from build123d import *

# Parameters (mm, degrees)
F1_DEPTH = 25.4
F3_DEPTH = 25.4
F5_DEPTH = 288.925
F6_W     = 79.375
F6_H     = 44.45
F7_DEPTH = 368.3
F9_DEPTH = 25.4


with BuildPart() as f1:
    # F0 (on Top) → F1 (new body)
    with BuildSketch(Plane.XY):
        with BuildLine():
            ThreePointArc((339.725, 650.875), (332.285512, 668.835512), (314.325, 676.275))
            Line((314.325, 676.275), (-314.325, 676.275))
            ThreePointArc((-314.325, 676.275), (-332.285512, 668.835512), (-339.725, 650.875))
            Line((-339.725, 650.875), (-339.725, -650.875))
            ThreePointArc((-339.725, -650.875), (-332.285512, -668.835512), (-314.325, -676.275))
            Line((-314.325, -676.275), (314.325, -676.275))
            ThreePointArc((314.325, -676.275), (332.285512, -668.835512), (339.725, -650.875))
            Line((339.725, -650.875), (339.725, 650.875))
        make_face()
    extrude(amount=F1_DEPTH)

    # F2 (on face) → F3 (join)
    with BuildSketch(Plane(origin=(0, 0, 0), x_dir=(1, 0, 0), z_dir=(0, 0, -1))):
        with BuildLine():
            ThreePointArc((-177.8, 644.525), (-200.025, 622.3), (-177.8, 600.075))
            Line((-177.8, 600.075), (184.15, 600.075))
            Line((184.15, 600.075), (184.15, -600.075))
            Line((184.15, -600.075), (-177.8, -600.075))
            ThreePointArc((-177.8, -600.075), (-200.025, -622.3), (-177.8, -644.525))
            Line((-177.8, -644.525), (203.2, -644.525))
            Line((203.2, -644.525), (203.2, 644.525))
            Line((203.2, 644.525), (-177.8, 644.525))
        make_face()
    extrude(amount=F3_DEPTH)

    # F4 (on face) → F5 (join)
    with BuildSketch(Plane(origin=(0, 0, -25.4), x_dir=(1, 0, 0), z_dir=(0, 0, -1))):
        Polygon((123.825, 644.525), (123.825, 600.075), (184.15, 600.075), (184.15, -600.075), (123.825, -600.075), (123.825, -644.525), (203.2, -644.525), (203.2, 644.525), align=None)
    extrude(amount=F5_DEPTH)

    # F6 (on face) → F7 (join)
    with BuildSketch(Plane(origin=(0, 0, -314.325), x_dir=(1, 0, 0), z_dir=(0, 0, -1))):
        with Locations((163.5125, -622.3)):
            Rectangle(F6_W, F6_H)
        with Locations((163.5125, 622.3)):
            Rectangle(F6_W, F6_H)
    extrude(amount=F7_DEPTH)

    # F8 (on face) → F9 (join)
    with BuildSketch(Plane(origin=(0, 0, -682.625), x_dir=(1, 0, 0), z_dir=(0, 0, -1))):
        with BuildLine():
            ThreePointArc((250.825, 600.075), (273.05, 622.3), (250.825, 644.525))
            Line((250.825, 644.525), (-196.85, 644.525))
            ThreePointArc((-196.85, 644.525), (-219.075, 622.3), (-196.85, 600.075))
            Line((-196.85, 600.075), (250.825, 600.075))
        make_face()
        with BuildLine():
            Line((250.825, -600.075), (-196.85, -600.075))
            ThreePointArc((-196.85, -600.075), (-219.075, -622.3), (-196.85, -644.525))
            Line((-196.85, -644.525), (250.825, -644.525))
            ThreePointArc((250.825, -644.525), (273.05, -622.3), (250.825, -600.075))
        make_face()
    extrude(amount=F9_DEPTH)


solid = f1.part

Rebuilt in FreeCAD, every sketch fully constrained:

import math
import FreeCAD as App
import Part
import Sketcher
from FreeCAD import Vector
Q = App.Units.Quantity


def add_polygon(sketch, points):
    """Adds a closed chain of lines whose ends are joined by coincident constraints."""
    first, n = sketch.GeometryCount, len(points)
    for a, b in zip(points, points[1:] + points[:1]):
        sketch.addGeometry(Part.LineSegment(App.Vector(*a, 0), App.Vector(*b, 0)), False)
    for i in range(n):
        sketch.addConstraint(Sketcher.Constraint("Coincident", first + i, 2, first + (i + 1) % n, 1))

doc = App.newDocument("Part")
params = doc.addObject("Spreadsheet::Sheet", "Params")
for row, (alias, value) in enumerate([
    ("sketch1_radius", "1 in"),
    ("sketch1_width", "24.75 in"),
    ("sketch1_height", "51.25 in"),
    ("pad1_length", "1 in"),
    ("sketch2_width", "15 in"),
    ("sketch2_radius", "0.875 in"),
    ("sketch2_width2", "14.25 in"),
    ("pad2_length", "1 in"),
    ("sketch3_height", "1.75 in"),
    ("sketch3_width", "2.375 in"),
    ("sketch3_width2", "3.125 in"),
    ("pad3_length", "11.375 in"),
    ("sketch4_height", "1.75 in"),
    ("sketch4_width", "3.125 in"),
    ("pad4_length", "14.5 in"),
    ("sketch5_radius", "0.875 in"),
    ("sketch5_width", "17.625 in"),
    ("pad5_length", "1 in"),
], start=1):
    params.set(f"A{row}", alias)
    params.set(f"B{row}", "=" + value)
    params.setAlias(f"B{row}", alias)

body = doc.addObject("PartDesign::Body", "Body")

# Sketch on XY plane
sketch1 = doc.addObject("Sketcher::SketchObject", "Sketch")
body.addObject(sketch1)
sketch1.AttachmentSupport = (doc.XY_Plane, [""])
sketch1.MapMode = "FlatFace"
sketch1.addGeometry(Part.ArcOfCircle(Part.Circle(Vector(314, 651, 0), Vector(0, 0, 1), 25), math.radians(0), math.radians(90)), False)
sketch1.addGeometry(Part.LineSegment(Vector(314, 676, 0), Vector(-314, 676, 0)), False)
sketch1.addGeometry(Part.ArcOfCircle(Part.Circle(Vector(-314, 651, 0), Vector(0, 0, 1), 25), math.radians(90), math.radians(180)), False)
sketch1.addGeometry(Part.LineSegment(Vector(-340, 651, 0), Vector(-340, -651, 0)), False)
sketch1.addGeometry(Part.ArcOfCircle(Part.Circle(Vector(-314, -651, 0), Vector(0, 0, 1), 25), math.radians(-180), math.radians(-90)), False)
sketch1.addGeometry(Part.LineSegment(Vector(-314, -676, 0), Vector(314, -676, 0)), False)
sketch1.addGeometry(Part.ArcOfCircle(Part.Circle(Vector(314, -651, 0), Vector(0, 0, 1), 25), math.radians(-90), math.radians(0)), False)
sketch1.addGeometry(Part.LineSegment(Vector(340, -651, 0), Vector(340, 651, 0)), False)
sketch1.addConstraint(Sketcher.Constraint("Tangent", 0, 2, 1, 1))
sketch1.addConstraint(Sketcher.Constraint("Tangent", 1, 2, 2, 1))
sketch1.addConstraint(Sketcher.Constraint("Tangent", 2, 2, 3, 1))
sketch1.addConstraint(Sketcher.Constraint("Tangent", 3, 2, 4, 1))
sketch1.addConstraint(Sketcher.Constraint("Tangent", 4, 2, 5, 1))
sketch1.addConstraint(Sketcher.Constraint("Tangent", 5, 2, 6, 1))
sketch1.addConstraint(Sketcher.Constraint("Tangent", 6, 2, 7, 1))
sketch1.addConstraint(Sketcher.Constraint("Tangent", 7, 2, 0, 1))
sketch1.addConstraint(Sketcher.Constraint("Horizontal", 1))
sketch1.addConstraint(Sketcher.Constraint("Vertical", 3))
sketch1.addConstraint(Sketcher.Constraint("Horizontal", 5))
sketch1.addConstraint(Sketcher.Constraint("Vertical", 7))
sketch1.addConstraint(Sketcher.Constraint("Equal", 0, 2))
sketch1.addConstraint(Sketcher.Constraint("Equal", 2, 4))
sketch1.addConstraint(Sketcher.Constraint("Equal", 4, 6))
sketch1.addConstraint(Sketcher.Constraint("Symmetric", 0, 3, 4, 3, -1, 1))
sketch1.addConstraint(Sketcher.Constraint("Radius", 0, Q("1 in")))
sketch1.addConstraint(Sketcher.Constraint("DistanceX", 1, 2, 1, 1, Q("24.75 in")))
sketch1.addConstraint(Sketcher.Constraint("DistanceY", 3, 2, 3, 1, Q("51.25 in")))
sketch1.setExpression("Constraints[16]", "Params.sketch1_radius")
sketch1.setExpression("Constraints[17]", "Params.sketch1_width")
sketch1.setExpression("Constraints[18]", "Params.sketch1_height")
pad1 = doc.addObject("PartDesign::Pad", "Pad")
body.addObject(pad1)
pad1.Profile = sketch1
pad1.setExpression("Length", "Params.pad1_length")

# Sketch on XY plane
sketch2 = doc.addObject("Sketcher::SketchObject", "Sketch001")
body.addObject(sketch2)
sketch2.AttachmentSupport = (doc.XY_Plane, [""])
sketch2.MapMode = "FlatFace"
sketch2.addGeometry(Part.ArcOfCircle(Part.Circle(Vector(-178, -622, 0), Vector(0, 0, 1), 22), math.radians(90), math.radians(270)), False)
sketch2.addGeometry(Part.LineSegment(Vector(-178, -600, 0), Vector(184, -600, 0)), False)
sketch2.addGeometry(Part.LineSegment(Vector(184, -600, 0), Vector(184, 600, 0)), False)
sketch2.addGeometry(Part.LineSegment(Vector(184, 600, 0), Vector(-178, 600, 0)), False)
sketch2.addGeometry(Part.ArcOfCircle(Part.Circle(Vector(-178, 622, 0), Vector(0, 0, 1), 22), math.radians(90), math.radians(270)), False)
sketch2.addGeometry(Part.LineSegment(Vector(-178, 645, 0), Vector(203, 645, 0)), False)
sketch2.addGeometry(Part.LineSegment(Vector(203, 645, 0), Vector(203, -645, 0)), False)
sketch2.addGeometry(Part.LineSegment(Vector(203, -645, 0), Vector(-178, -645, 0)), False)
sketch2.addConstraint(Sketcher.Constraint("Tangent", 0, 1, 1, 1))
sketch2.addConstraint(Sketcher.Constraint("Coincident", 1, 2, 2, 1))
sketch2.addConstraint(Sketcher.Constraint("Coincident", 2, 2, 3, 1))
sketch2.addConstraint(Sketcher.Constraint("Tangent", 3, 2, 4, 2))
sketch2.addConstraint(Sketcher.Constraint("Tangent", 4, 1, 5, 1))
sketch2.addConstraint(Sketcher.Constraint("Coincident", 5, 2, 6, 1))
sketch2.addConstraint(Sketcher.Constraint("Coincident", 6, 2, 7, 1))
sketch2.addConstraint(Sketcher.Constraint("Tangent", 7, 2, 0, 2))
sketch2.addConstraint(Sketcher.Constraint("Horizontal", 1))
sketch2.addConstraint(Sketcher.Constraint("Vertical", 2))
sketch2.addConstraint(Sketcher.Constraint("Horizontal", 3))
sketch2.addConstraint(Sketcher.Constraint("Horizontal", 5))
sketch2.addConstraint(Sketcher.Constraint("Vertical", 6))
sketch2.addConstraint(Sketcher.Constraint("Horizontal", 7))
sketch2.addConstraint(Sketcher.Constraint("Equal", 0, 4))
sketch2.addConstraint(Sketcher.Constraint("Symmetric", 0, 3, 4, 3, -1))
sketch2.addConstraint(Sketcher.Constraint("DistanceX", 5, 1, 5, 2, Q("15 in")))
sketch2.addConstraint(Sketcher.Constraint("DistanceX", 0, 3, -1, 1, Q("7 in")))
sketch2.addConstraint(Sketcher.Constraint("Radius", 0, Q("0.875 in")))
sketch2.addConstraint(Sketcher.Constraint("DistanceY", 0, 3, 4, 3, Q("49 in")))
sketch2.addConstraint(Sketcher.Constraint("DistanceX", 1, 1, 1, 2, Q("14.25 in")))
sketch2.setExpression("Constraints[16]", "Params.sketch2_width")
sketch2.setExpression("Constraints[18]", "Params.sketch2_radius")
sketch2.setExpression("Constraints[20]", "Params.sketch2_width2")
pad2 = doc.addObject("PartDesign::Pad", "Pad001")
body.addObject(pad2)
pad2.Profile = sketch2
pad2.setExpression("Length", "Params.pad2_length")
pad2.Reversed = True

# Sketch on XY plane
sketch3 = doc.addObject("Sketcher::SketchObject", "Sketch002")
body.addObject(sketch3)
sketch3.AttachmentSupport = (doc.XY_Plane, [""])
sketch3.MapMode = "FlatFace"
sketch3.AttachmentOffset = App.Placement(Vector(0, 0, -1 * 25.4), App.Rotation())
add_polygon(sketch3, [(124, -645), (124, -600), (184, -600), (184, 600), (124, 600), (124, 645), (203, 645), (203, -645)])  # lines 0-7
sketch3.addConstraint(Sketcher.Constraint("Vertical", 0))
sketch3.addConstraint(Sketcher.Constraint("Horizontal", 1))
sketch3.addConstraint(Sketcher.Constraint("Vertical", 2))
sketch3.addConstraint(Sketcher.Constraint("Horizontal", 3))
sketch3.addConstraint(Sketcher.Constraint("Vertical", 4))
sketch3.addConstraint(Sketcher.Constraint("Horizontal", 5))
sketch3.addConstraint(Sketcher.Constraint("Vertical", 6))
sketch3.addConstraint(Sketcher.Constraint("Horizontal", 7))
sketch3.addConstraint(Sketcher.Constraint("Symmetric", 0, 2, 3, 2, -1))
sketch3.addConstraint(Sketcher.Constraint("Equal", 0, 4))
sketch3.addConstraint(Sketcher.Constraint("DistanceX", -1, 1, 5, 2, Q("8 in")))
sketch3.addConstraint(Sketcher.Constraint("DistanceY", 0, 2, 4, 2, Q("49 in")))
sketch3.addConstraint(Sketcher.Constraint("DistanceY", 0, 1, 0, 2, Q("1.75 in")))
sketch3.addConstraint(Sketcher.Constraint("DistanceX", 1, 1, 1, 2, Q("2.375 in")))
sketch3.addConstraint(Sketcher.Constraint("DistanceX", 5, 1, 5, 2, Q("3.125 in")))
sketch3.setExpression("Constraints[20]", "Params.sketch3_height")
sketch3.setExpression("Constraints[21]", "Params.sketch3_width")
sketch3.setExpression("Constraints[22]", "Params.sketch3_width2")
pad3 = doc.addObject("PartDesign::Pad", "Pad002")
body.addObject(pad3)
pad3.Profile = sketch3
pad3.setExpression("Length", "Params.pad3_length")
pad3.Reversed = True

# Sketch on XY plane
sketch4 = doc.addObject("Sketcher::SketchObject", "Sketch003")
body.addObject(sketch4)
sketch4.AttachmentSupport = (doc.XY_Plane, [""])
sketch4.MapMode = "FlatFace"
sketch4.AttachmentOffset = App.Placement(Vector(0, 0, -12.375 * 25.4), App.Rotation())
add_polygon(sketch4, [(124, 600), (124, 645), (203, 645), (203, 600)])  # lines 0-3
add_polygon(sketch4, [(124, -645), (124, -600), (203, -600), (203, -645)])  # lines 4-7
sketch4.addConstraint(Sketcher.Constraint("Vertical", 0))
sketch4.addConstraint(Sketcher.Constraint("Horizontal", 1))
sketch4.addConstraint(Sketcher.Constraint("Vertical", 2))
sketch4.addConstraint(Sketcher.Constraint("Horizontal", 3))
sketch4.addConstraint(Sketcher.Constraint("Vertical", 4))
sketch4.addConstraint(Sketcher.Constraint("Horizontal", 5))
sketch4.addConstraint(Sketcher.Constraint("Vertical", 6))
sketch4.addConstraint(Sketcher.Constraint("Horizontal", 7))
sketch4.addConstraint(Sketcher.Constraint("Symmetric", 3, 2, 4, 2, -1))
sketch4.addConstraint(Sketcher.Constraint("Symmetric", 1, 2, 6, 2, -1))
sketch4.addConstraint(Sketcher.Constraint("DistanceX", -1, 1, 1, 2, Q("8 in")))
sketch4.addConstraint(Sketcher.Constraint("DistanceY", 4, 2, 0, 2, Q("49 in")))
sketch4.addConstraint(Sketcher.Constraint("DistanceY", 0, 1, 0, 2, Q("1.75 in")))
sketch4.addConstraint(Sketcher.Constraint("DistanceX", 1, 1, 1, 2, Q("3.125 in")))
sketch4.setExpression("Constraints[20]", "Params.sketch4_height")
sketch4.setExpression("Constraints[21]", "Params.sketch4_width")
pad4 = doc.addObject("PartDesign::Pad", "Pad003")
body.addObject(pad4)
pad4.Profile = sketch4
pad4.setExpression("Length", "Params.pad4_length")
pad4.Reversed = True

# Sketch on XY plane
sketch5 = doc.addObject("Sketcher::SketchObject", "Sketch004")
body.addObject(sketch5)
sketch5.AttachmentSupport = (doc.XY_Plane, [""])
sketch5.MapMode = "FlatFace"
sketch5.AttachmentOffset = App.Placement(Vector(0, 0, -26.875 * 25.4), App.Rotation())
sketch5.addGeometry(Part.ArcOfCircle(Part.Circle(Vector(251, -622, 0), Vector(0, 0, 1), 22), math.radians(-90), math.radians(90)), False)
sketch5.addGeometry(Part.LineSegment(Vector(251, -645, 0), Vector(-197, -645, 0)), False)
sketch5.addGeometry(Part.ArcOfCircle(Part.Circle(Vector(-197, -622, 0), Vector(0, 0, 1), 22), math.radians(90), math.radians(270)), False)
sketch5.addGeometry(Part.LineSegment(Vector(-197, -600, 0), Vector(251, -600, 0)), False)
sketch5.addGeometry(Part.LineSegment(Vector(251, 600, 0), Vector(-197, 600, 0)), False)
sketch5.addGeometry(Part.ArcOfCircle(Part.Circle(Vector(-197, 622, 0), Vector(0, 0, 1), 22), math.radians(90), math.radians(270)), False)
sketch5.addGeometry(Part.LineSegment(Vector(-197, 645, 0), Vector(251, 645, 0)), False)
sketch5.addGeometry(Part.ArcOfCircle(Part.Circle(Vector(251, 622, 0), Vector(0, 0, 1), 22), math.radians(-90), math.radians(90)), False)
sketch5.addConstraint(Sketcher.Constraint("Tangent", 0, 1, 1, 1))
sketch5.addConstraint(Sketcher.Constraint("Tangent", 1, 2, 2, 2))
sketch5.addConstraint(Sketcher.Constraint("Tangent", 2, 1, 3, 1))
sketch5.addConstraint(Sketcher.Constraint("Tangent", 3, 2, 0, 2))
sketch5.addConstraint(Sketcher.Constraint("Tangent", 4, 2, 5, 2))
sketch5.addConstraint(Sketcher.Constraint("Tangent", 5, 1, 6, 1))
sketch5.addConstraint(Sketcher.Constraint("Tangent", 6, 2, 7, 2))
sketch5.addConstraint(Sketcher.Constraint("Tangent", 7, 1, 4, 1))
sketch5.addConstraint(Sketcher.Constraint("Horizontal", 1))
sketch5.addConstraint(Sketcher.Constraint("Horizontal", 3))
sketch5.addConstraint(Sketcher.Constraint("Horizontal", 4))
sketch5.addConstraint(Sketcher.Constraint("Horizontal", 6))
sketch5.addConstraint(Sketcher.Constraint("Equal", 2, 5))
sketch5.addConstraint(Sketcher.Constraint("Symmetric", 2, 3, 5, 3, -1))
sketch5.addConstraint(Sketcher.Constraint("Vertical", 0, 3, 7, 3))
sketch5.addConstraint(Sketcher.Constraint("Radius", 0, Q("0.875 in")))
sketch5.addConstraint(Sketcher.Constraint("DistanceY", 2, 3, 5, 3, Q("49 in")))
sketch5.addConstraint(Sketcher.Constraint("DistanceX", 1, 2, 1, 1, Q("17.625 in")))
sketch5.addConstraint(Sketcher.Constraint("DistanceX", 2, 3, -1, 1, Q("7.75 in")))
sketch5.setExpression("Constraints[15]", "Params.sketch5_radius")
sketch5.setExpression("Constraints[17]", "Params.sketch5_width")
pad5 = doc.addObject("PartDesign::Pad", "Pad004")
body.addObject(pad5)
pad5.Profile = sketch5
pad5.setExpression("Length", "Params.pad5_length")
pad5.Reversed = True

doc.recompute()
